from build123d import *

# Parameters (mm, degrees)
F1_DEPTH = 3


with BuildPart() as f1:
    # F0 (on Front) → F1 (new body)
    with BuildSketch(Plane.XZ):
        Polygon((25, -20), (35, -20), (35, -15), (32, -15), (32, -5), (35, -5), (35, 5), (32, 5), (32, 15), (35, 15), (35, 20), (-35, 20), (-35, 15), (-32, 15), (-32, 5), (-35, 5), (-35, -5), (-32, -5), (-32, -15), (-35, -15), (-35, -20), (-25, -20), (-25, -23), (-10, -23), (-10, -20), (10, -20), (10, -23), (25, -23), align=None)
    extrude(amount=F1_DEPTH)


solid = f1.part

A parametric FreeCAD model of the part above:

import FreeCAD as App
import Part
import Sketcher
from FreeCAD import Vector

doc = App.newDocument("Part")
body = doc.addObject("PartDesign::Body", "Body")

sketch1 = doc.addObject("Sketcher::SketchObject", "Sketch")
body.addObject(sketch1)
sketch1.AttachmentSupport = (doc.XZ_Plane, [""])
sketch1.MapMode = "FlatFace"
sketch1.addGeometry([
    Part.LineSegment(Vector(25, -20, 0), Vector(35, -20, 0)),
    Part.LineSegment(Vector(35, -20, 0), Vector(35, -15, 0)),
    Part.LineSegment(Vector(35, -15, 0), Vector(32, -15, 0)),
    Part.LineSegment(Vector(32, -15, 0), Vector(32, -5, 0)),
    Part.LineSegment(Vector(32, -5, 0), Vector(35, -5, 0)),
    Part.LineSegment(Vector(35, -5, 0), Vector(35, 5, 0)),
    Part.LineSegment(Vector(35, 5, 0), Vector(32, 5, 0)),
    Part.LineSegment(Vector(32, 5, 0), Vector(32, 15, 0)),
    Part.LineSegment(Vector(32, 15, 0), Vector(35, 15, 0)),
    Part.LineSegment(Vector(35, 15, 0), Vector(35, 20, 0)),
    Part.LineSegment(Vector(35, 20, 0), Vector(-35, 20, 0)),
    Part.LineSegment(Vector(-35, 20, 0), Vector(-35, 15, 0)),
    Part.LineSegment(Vector(-35, 15, 0), Vector(-32, 15, 0)),
    Part.LineSegment(Vector(-32, 15, 0), Vector(-32, 5, 0)),
    Part.LineSegment(Vector(-32, 5, 0), Vector(-35, 5, 0)),
    Part.LineSegment(Vector(-35, 5, 0), Vector(-35, -5, 0)),
    Part.LineSegment(Vector(-35, -5, 0), Vector(-32, -5, 0)),
    Part.LineSegment(Vector(-32, -5, 0), Vector(-32, -15, 0)),
    Part.LineSegment(Vector(-32, -15, 0), Vector(-35, -15, 0)),
    Part.LineSegment(Vector(-35, -15, 0), Vector(-35, -20, 0)),
    Part.LineSegment(Vector(-35, -20, 0), Vector(-25, -20, 0)),
    Part.LineSegment(Vector(-25, -20, 0), Vector(-25, -23, 0)),
    Part.LineSegment(Vector(-25, -23, 0), Vector(-10, -23, 0)),
    Part.LineSegment(Vector(-10, -23, 0), Vector(-10, -20, 0)),
    Part.LineSegment(Vector(-10, -20, 0), Vector(10, -20, 0)),
    Part.LineSegment(Vector(10, -20, 0), Vector(10, -23, 0)),
    Part.LineSegment(Vector(10, -23, 0), Vector(25, -23, 0)),
    Part.LineSegment(Vector(25, -23, 0), Vector(25, -20, 0)),
], False)
sketch1.addConstraint([
    Sketcher.Constraint("Coincident", 0, 2, 1, 1),
    Sketcher.Constraint("Coincident", 1, 2, 2, 1),
    Sketcher.Constraint("Coincident", 2, 2, 3, 1),
    Sketcher.Constraint("Coincident", 3, 2, 4, 1),
    Sketcher.Constraint("Coincident", 4, 2, 5, 1),
    Sketcher.Constraint("Coincident", 5, 2, 6, 1),
    Sketcher.Constraint("Coincident", 6, 2, 7, 1),
    Sketcher.Constraint("Coincident", 7, 2, 8, 1),
    Sketcher.Constraint("Coincident", 8, 2, 9, 1),
    Sketcher.Constraint("Coincident", 9, 2, 10, 1),
    Sketcher.Constraint("Coincident", 10, 2, 11, 1),
    Sketcher.Constraint("Coincident", 11, 2, 12, 1),
    Sketcher.Constraint("Coincident", 12, 2, 13, 1),
    Sketcher.Constraint("Coincident", 13, 2, 14, 1),
    Sketcher.Constraint("Coincident", 14, 2, 15, 1),
    Sketcher.Constraint("Coincident", 15, 2, 16, 1),
    Sketcher.Constraint("Coincident", 16, 2, 17, 1),
    Sketcher.Constraint("Coincident", 17, 2, 18, 1),
    Sketcher.Constraint("Coincident", 18, 2, 19, 1),
    Sketcher.Constraint("Coincident", 19, 2, 20, 1),
    Sketcher.Constraint("Coincident", 20, 2, 21, 1),
    Sketcher.Constraint("Coincident", 21, 2, 22, 1),
    Sketcher.Constraint("Coincident", 22, 2, 23, 1),
    Sketcher.Constraint("Coincident", 23, 2, 24, 1),
    Sketcher.Constraint("Coincident", 24, 2, 25, 1),
    Sketcher.Constraint("Coincident", 25, 2, 26, 1),
    Sketcher.Constraint("Coincident", 26, 2, 27, 1),
    Sketcher.Constraint("Coincident", 27, 2, 0, 1),
    Sketcher.Constraint("Horizontal", 0),
    Sketcher.Constraint("Vertical", 1),
    Sketcher.Constraint("Horizontal", 2),
    Sketcher.Constraint("Vertical", 3),
    Sketcher.Constraint("Horizontal", 4),
    Sketcher.Constraint("Vertical", 5),
    Sketcher.Constraint("Horizontal", 6),
    Sketcher.Constraint("Vertical", 7),
    Sketcher.Constraint("Horizontal", 8),
    Sketcher.Constraint("Vertical", 9),
    Sketcher.Constraint("Horizontal", 10),
    Sketcher.Constraint("Vertical", 11),
    Sketcher.Constraint("Horizontal", 12),
    Sketcher.Constraint("Vertical", 13),
    Sketcher.Constraint("Horizontal", 14),
    Sketcher.Constraint("Vertical", 15),
    Sketcher.Constraint("Horizontal", 16),
    Sketcher.Constraint("Vertical", 17),
    Sketcher.Constraint("Horizontal", 18),
    Sketcher.Constraint("Vertical", 19),
    Sketcher.Constraint("Horizontal", 20),
    Sketcher.Constraint("Vertical", 21),
    Sketcher.Constraint("Horizontal", 22),
    Sketcher.Constraint("Vertical", 23),
    Sketcher.Constraint("Horizontal", 24),
    Sketcher.Constraint("Vertical", 25),
    Sketcher.Constraint("Horizontal", 26),
    Sketcher.Constraint("Vertical", 27),
    Sketcher.Constraint("Symmetric", 0, 2, 10, 2, -1, 1),
    Sketcher.Constraint("Symmetric", 2, 2, 12, 2, -1, 1),
    Sketcher.Constraint("Symmetric", 4, 2, 14, 2, -1, 1),
    Sketcher.Constraint("Symmetric", 6, 2, 16, 2, -1, 1),
    Sketcher.Constraint("Symmetric", 8, 2, 18, 2, -1, 1),
    Sketcher.Constraint("Symmetric", 8, 2, 11, 2, -2),
    Sketcher.Constraint("Symmetric", 6, 2, 13, 2, -2),
    Sketcher.Constraint("Symmetric", 22, 2, 25, 2, -2),
    Sketcher.Constraint("Symmetric", 20, 2, 27, 2, -2),
    Sketcher.Constraint("Horizontal", 20, 2, 23, 2),
    Sketcher.Constraint("Vertical", 1, 2, 4, 2),
    Sketcher.Constraint("Equal", 20, 3),
    Sketcher.Constraint("Equal", 3, 5),
    Sketcher.Constraint("Equal", 18, 21),
    Sketcher.Constraint("DistanceX", 0, 1, 0, 2, 10.0),
    Sketcher.Constraint("DistanceX", 2, 2, 2, 1, 3.0),
    Sketcher.Constraint("DistanceX", 10, 2, 10, 1, 70.0),
    Sketcher.Constraint("DistanceX", 22, 1, 22, 2, 15.0),
    Sketcher.Constraint("DistanceY", 1, 1, 1, 2, 5.0),
])
pad1 = doc.addObject("PartDesign::Pad", "Pad")
body.addObject(pad1)
pad1.Profile = sketch1
pad1.Length = 3

doc.recompute()
